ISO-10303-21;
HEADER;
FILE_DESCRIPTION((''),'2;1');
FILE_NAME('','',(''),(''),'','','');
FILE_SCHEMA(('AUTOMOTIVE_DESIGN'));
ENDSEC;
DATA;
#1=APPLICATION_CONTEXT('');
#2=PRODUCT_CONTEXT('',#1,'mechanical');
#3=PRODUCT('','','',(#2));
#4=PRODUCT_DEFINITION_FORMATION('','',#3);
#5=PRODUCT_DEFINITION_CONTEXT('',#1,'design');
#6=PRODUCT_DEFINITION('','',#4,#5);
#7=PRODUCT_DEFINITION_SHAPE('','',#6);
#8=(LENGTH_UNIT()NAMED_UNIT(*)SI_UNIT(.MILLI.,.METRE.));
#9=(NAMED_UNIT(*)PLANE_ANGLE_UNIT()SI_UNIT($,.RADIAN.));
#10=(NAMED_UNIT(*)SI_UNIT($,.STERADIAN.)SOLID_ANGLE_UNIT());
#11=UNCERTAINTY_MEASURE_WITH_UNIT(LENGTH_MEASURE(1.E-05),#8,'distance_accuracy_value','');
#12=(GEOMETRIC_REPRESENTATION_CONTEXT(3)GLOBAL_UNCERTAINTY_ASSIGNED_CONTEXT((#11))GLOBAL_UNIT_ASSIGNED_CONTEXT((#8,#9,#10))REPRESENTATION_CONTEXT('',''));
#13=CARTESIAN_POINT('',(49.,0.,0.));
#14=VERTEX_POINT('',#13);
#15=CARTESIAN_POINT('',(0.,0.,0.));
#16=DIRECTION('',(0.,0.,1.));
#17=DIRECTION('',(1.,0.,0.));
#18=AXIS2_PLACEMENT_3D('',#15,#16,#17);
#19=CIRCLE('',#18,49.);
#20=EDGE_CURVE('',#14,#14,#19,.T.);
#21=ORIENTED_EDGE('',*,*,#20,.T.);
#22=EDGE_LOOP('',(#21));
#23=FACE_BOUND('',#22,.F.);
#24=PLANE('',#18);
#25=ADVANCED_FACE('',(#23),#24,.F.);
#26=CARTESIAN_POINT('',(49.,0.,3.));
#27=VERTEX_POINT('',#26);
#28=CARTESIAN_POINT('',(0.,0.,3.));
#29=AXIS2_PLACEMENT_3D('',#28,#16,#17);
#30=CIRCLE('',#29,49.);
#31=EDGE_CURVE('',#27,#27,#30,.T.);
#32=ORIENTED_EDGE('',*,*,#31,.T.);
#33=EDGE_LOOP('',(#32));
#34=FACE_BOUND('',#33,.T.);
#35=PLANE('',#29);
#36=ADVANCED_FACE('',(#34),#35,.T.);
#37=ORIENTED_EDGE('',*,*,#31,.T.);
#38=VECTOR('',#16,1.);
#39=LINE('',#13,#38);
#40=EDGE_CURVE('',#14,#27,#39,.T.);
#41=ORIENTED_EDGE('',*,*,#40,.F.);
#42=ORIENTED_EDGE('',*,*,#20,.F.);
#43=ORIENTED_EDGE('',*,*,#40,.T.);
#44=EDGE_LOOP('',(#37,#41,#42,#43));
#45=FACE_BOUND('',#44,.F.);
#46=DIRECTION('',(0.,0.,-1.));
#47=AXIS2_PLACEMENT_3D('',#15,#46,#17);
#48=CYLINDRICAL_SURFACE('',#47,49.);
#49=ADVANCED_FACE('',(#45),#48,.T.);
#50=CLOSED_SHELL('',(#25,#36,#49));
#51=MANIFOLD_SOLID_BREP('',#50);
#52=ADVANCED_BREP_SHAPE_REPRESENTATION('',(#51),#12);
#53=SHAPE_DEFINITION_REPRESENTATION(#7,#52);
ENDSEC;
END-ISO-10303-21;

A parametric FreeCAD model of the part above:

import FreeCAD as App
import Part
import Sketcher
Q = App.Units.Quantity

doc = App.newDocument("Part")
params = doc.addObject("Spreadsheet::Sheet", "Params")
for row, (alias, value) in enumerate([
    ("sketch1_diameter", "98 mm"),
    ("pad1_length", "3 mm"),
], start=1):
    params.set(f"A{row}", alias)
    params.set(f"B{row}", "=" + value)
    params.setAlias(f"B{row}", alias)

body = doc.addObject("PartDesign::Body", "Body")

# Sketch on XY plane
sketch1 = body.newObject("Sketcher::SketchObject", "Sketch")
sketch1.AttachmentSupport = (doc.getObject("XY_Plane"), [""])
sketch1.MapMode = "FlatFace"
sketch1.addGeometry(Part.Circle(App.Vector(0, 0, 0), App.Vector(0, 0, 1), 49), False)
sketch1.addConstraint([
    Sketcher.Constraint("Coincident", 0, 3, -1, 1),
    Sketcher.Constraint("Diameter", 0, Q("98 mm")),
])
sketch1.setExpression("Constraints[1]", "Params.sketch1_diameter")
pad1 = body.newObject("PartDesign::Pad", "Pad")
pad1.Profile = sketch1
pad1.setExpression("Length", "Params.pad1_length")

doc.recompute()
